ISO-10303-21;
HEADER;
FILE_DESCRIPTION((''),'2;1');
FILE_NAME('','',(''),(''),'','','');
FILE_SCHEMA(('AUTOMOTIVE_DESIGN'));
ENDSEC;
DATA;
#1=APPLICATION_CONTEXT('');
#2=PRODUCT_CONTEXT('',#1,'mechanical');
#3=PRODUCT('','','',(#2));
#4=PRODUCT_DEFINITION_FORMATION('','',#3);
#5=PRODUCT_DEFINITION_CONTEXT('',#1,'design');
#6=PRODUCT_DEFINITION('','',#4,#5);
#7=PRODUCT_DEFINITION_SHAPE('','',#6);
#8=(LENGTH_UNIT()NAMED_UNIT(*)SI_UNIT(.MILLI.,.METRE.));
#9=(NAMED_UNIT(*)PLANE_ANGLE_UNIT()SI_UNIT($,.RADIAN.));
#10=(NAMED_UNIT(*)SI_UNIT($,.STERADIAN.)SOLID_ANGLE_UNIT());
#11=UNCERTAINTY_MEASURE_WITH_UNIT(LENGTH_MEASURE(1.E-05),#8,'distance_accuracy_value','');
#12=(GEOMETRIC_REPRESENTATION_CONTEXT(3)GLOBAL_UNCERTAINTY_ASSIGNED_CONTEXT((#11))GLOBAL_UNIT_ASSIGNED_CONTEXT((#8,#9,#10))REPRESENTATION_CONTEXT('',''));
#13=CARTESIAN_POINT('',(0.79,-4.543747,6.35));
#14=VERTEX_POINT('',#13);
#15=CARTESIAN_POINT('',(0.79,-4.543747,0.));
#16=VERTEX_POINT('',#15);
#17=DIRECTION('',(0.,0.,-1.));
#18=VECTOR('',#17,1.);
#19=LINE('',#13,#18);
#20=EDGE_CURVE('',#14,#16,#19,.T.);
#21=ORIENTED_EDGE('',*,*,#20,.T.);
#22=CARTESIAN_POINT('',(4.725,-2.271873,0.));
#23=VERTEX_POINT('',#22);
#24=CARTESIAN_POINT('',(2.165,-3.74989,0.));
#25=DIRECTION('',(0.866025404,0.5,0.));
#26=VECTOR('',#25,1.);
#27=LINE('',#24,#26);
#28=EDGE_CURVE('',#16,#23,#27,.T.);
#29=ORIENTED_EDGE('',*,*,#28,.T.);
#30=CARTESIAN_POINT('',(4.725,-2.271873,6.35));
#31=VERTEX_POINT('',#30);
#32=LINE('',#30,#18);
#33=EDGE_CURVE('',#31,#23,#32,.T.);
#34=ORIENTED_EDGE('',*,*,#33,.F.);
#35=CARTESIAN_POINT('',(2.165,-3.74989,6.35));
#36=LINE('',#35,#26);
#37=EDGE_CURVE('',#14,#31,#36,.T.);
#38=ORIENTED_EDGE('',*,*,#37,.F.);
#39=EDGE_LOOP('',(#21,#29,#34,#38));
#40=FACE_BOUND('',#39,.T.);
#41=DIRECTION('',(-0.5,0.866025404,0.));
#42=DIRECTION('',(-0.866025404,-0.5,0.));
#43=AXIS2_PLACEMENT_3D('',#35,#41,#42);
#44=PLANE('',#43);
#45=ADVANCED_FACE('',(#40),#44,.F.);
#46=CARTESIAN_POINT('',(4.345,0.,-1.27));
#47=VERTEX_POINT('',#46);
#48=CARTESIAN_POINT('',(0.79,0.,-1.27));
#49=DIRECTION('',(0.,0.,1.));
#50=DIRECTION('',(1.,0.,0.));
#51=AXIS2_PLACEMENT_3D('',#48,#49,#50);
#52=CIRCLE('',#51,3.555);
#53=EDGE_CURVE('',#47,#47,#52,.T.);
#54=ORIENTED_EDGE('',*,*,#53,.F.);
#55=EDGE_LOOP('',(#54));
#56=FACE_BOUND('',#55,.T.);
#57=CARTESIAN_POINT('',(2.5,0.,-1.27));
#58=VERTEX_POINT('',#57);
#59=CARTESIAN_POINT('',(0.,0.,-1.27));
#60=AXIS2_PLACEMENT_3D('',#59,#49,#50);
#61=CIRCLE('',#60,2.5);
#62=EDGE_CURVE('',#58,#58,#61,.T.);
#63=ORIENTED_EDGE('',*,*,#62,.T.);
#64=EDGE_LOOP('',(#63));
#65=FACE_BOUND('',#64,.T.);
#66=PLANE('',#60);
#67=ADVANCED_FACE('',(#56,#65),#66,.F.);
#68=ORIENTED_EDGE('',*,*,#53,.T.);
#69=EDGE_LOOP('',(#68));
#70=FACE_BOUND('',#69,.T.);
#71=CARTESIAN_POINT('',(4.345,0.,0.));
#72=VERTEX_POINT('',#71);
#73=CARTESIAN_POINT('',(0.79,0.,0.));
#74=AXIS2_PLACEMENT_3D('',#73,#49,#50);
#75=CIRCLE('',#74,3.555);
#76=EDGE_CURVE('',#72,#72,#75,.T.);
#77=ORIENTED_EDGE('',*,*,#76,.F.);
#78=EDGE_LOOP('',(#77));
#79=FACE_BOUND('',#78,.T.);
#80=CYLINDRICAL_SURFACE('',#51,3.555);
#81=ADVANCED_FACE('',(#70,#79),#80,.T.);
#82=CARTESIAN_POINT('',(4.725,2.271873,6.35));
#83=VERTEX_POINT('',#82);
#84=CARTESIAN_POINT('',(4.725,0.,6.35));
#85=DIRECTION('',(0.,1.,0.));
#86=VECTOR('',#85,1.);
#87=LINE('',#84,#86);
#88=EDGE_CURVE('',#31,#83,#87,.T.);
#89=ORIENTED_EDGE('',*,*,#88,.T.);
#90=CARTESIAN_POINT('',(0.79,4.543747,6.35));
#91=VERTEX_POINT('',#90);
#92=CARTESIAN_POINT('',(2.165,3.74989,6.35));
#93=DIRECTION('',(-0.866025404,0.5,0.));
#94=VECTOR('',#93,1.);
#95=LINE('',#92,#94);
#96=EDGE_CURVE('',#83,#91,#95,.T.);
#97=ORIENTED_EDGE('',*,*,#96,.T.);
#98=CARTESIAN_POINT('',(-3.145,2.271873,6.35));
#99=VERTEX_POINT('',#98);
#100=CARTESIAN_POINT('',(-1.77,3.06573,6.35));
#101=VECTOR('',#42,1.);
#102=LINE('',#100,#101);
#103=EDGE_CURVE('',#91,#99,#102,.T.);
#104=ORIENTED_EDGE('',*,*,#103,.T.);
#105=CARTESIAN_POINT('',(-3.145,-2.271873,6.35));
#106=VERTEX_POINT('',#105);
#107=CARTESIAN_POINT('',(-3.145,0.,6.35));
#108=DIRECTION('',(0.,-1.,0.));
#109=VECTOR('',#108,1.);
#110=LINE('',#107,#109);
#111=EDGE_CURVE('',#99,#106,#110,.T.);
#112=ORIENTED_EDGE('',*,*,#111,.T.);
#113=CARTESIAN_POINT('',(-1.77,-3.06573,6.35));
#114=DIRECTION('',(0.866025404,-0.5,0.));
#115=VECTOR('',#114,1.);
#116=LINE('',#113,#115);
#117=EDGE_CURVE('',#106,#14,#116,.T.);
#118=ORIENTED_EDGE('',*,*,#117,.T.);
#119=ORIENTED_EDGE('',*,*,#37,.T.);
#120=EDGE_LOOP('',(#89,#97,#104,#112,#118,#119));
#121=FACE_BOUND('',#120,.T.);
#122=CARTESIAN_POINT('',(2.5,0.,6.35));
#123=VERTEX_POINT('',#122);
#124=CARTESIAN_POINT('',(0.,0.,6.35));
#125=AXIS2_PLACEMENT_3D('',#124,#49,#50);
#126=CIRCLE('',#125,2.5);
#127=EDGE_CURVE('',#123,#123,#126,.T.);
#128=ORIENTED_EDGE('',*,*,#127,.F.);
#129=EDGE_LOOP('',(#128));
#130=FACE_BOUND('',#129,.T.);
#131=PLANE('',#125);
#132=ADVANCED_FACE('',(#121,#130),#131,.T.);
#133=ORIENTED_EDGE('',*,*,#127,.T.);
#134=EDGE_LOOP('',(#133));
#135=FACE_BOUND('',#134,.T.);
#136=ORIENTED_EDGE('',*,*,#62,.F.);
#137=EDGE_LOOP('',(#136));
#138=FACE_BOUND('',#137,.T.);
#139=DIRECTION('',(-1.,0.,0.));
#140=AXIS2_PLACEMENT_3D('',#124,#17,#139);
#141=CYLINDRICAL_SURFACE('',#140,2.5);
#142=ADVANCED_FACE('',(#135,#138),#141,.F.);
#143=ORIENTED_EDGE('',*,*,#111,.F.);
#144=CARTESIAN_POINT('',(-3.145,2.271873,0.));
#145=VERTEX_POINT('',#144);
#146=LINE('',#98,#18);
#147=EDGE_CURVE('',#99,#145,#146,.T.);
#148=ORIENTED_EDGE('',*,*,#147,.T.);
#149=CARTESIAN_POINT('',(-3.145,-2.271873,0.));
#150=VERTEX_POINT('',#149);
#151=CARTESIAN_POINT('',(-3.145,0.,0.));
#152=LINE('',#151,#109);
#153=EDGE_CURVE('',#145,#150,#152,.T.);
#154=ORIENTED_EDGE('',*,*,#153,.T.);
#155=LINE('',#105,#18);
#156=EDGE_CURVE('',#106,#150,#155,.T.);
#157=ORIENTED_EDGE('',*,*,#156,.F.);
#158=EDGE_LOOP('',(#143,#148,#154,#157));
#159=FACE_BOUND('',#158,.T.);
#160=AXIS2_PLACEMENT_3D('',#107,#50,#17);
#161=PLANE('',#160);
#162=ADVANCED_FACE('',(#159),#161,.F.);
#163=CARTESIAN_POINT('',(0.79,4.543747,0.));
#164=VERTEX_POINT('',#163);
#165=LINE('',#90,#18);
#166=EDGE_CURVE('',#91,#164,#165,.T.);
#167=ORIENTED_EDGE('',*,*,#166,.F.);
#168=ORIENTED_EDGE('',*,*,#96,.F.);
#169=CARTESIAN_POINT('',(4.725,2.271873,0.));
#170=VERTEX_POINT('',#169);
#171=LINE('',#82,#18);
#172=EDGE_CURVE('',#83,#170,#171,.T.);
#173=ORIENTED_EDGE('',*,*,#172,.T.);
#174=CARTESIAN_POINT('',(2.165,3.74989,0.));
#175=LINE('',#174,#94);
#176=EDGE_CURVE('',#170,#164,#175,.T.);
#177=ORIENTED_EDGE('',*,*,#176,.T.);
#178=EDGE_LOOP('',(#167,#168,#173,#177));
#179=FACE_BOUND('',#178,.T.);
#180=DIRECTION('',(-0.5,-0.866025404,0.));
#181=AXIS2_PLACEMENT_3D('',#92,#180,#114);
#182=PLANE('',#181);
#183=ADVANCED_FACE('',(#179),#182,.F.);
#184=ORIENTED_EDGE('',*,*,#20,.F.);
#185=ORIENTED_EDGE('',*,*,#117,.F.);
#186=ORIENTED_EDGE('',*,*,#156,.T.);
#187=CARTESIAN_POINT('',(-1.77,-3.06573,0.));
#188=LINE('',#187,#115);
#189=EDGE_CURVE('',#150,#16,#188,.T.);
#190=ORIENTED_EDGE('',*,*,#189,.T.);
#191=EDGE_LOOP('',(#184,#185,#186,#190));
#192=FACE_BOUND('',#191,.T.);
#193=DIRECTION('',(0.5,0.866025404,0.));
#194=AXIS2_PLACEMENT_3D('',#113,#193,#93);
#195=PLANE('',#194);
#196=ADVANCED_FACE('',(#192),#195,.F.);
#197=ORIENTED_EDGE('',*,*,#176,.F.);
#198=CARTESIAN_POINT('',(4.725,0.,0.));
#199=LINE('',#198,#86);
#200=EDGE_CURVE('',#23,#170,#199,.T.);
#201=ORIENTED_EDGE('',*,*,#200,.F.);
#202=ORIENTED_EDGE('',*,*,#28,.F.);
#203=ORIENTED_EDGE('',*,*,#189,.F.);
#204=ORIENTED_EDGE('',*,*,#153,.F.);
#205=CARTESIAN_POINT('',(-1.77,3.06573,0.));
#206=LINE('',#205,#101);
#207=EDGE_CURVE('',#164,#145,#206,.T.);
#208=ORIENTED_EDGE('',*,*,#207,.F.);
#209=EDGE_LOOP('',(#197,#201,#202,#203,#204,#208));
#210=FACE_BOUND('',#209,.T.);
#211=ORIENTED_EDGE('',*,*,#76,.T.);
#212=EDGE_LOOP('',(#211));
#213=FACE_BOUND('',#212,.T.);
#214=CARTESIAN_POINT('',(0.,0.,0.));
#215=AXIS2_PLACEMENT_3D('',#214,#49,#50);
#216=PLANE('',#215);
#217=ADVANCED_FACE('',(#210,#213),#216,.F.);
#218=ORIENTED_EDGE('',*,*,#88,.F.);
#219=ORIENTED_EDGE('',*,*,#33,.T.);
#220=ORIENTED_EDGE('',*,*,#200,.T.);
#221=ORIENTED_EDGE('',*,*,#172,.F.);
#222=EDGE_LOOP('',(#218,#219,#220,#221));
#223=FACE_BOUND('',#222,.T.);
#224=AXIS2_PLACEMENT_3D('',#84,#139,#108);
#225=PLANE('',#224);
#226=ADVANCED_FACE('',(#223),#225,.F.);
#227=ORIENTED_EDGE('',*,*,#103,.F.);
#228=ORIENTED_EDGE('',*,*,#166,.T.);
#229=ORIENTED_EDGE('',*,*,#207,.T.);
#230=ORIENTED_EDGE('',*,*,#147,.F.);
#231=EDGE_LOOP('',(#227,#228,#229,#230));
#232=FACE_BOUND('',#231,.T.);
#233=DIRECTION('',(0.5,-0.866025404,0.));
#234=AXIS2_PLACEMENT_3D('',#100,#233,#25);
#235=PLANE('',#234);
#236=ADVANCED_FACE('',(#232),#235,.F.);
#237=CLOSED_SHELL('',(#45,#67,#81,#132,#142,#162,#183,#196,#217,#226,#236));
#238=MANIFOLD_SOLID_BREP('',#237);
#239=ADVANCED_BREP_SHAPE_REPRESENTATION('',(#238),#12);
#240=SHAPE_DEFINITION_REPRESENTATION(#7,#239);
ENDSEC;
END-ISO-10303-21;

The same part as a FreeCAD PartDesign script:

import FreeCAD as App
import Part
import Sketcher
from FreeCAD import Vector
Q = App.Units.Quantity


def add_polygon(sketch, points):
    """Adds a closed chain of lines whose ends are joined by coincident constraints."""
    first, n = sketch.GeometryCount, len(points)
    for a, b in zip(points, points[1:] + points[:1]):
        sketch.addGeometry(Part.LineSegment(App.Vector(*a, 0), App.Vector(*b, 0)), False)
    for i in range(n):
        sketch.addConstraint(Sketcher.Constraint("Coincident", first + i, 2, first + (i + 1) % n, 1))

doc = App.newDocument("Part")
body = doc.addObject("PartDesign::Body", "Body")

# Sketch on XY plane
sketch1 = body.newObject("Sketcher::SketchObject", "Sketch")
sketch1.AttachmentSupport = (doc.getObject("XY_Plane"), [""])
sketch1.MapMode = "FlatFace"
add_polygon(sketch1, [(4.725, -2.271873), (4.725, 2.271873), (0.79, 4.543747), (-3.145, 2.271873), (-3.145, -2.271873), (0.79, -4.543747)])  # lines 0-5
sketch1.addGeometry(Part.Circle(Vector(0, 0, 0), Vector(0, 0, 1), 2.5), False)  # 6
sketch1.addConstraint([
    Sketcher.Constraint("Vertical", 0),
    Sketcher.Constraint("Vertical", 3),
    Sketcher.Constraint("Coincident", 6, 3, -1, 1),
    Sketcher.Constraint("Symmetric", 1, 2, 4, 2, -1),
    Sketcher.Constraint("Parallel", 1, 4),
    Sketcher.Constraint("Parallel", 2, 5),
    Sketcher.Constraint("Horizontal", 0, 2, 2, 2),
    Sketcher.Constraint("Horizontal", 3, 2, 5, 2),
    Sketcher.Constraint("Angle", 1, Q("150 deg")),
    Sketcher.Constraint("Diameter", 6, Q("5 mm")),
    Sketcher.Constraint("DistanceX", -1, 1, 0, 2, Q("4.725 mm")),
    Sketcher.Constraint("DistanceX", -1, 1, 1, 2, Q("0.79 mm")),
    Sketcher.Constraint("DistanceY", 0, 1, 0, 2, Q("4.543747 mm")),
])
pad1 = body.newObject("PartDesign::Pad", "Pad")
pad1.Profile = sketch1
pad1.Length = Q("0.25 in")

# Sketch on XY plane
sketch2 = body.newObject("Sketcher::SketchObject", "Sketch001")
sketch2.AttachmentSupport = (doc.getObject("XY_Plane"), [""])
sketch2.MapMode = "FlatFace"
sketch2.AttachmentOffset = App.Placement(Vector(0, 0, -0.05 * 25.4), App.Rotation())
sketch2.addGeometry([
    Part.Circle(Vector(0.79, 0, 0), Vector(0, 0, 1), 3.555),
    Part.Circle(Vector(0, 0, 0), Vector(0, 0, 1), 2.5),
], False)
sketch2.addConstraint([
    Sketcher.Constraint("Coincident", 1, 3, -1, 1),
    Sketcher.Constraint("PointOnObject", 0, 3, -1),
    Sketcher.Constraint("Diameter", 0, Q("7.11 mm")),
    Sketcher.Constraint("Diameter", 1, Q("5 mm")),
    Sketcher.Constraint("DistanceX", -1, 1, 0, 3, Q("0.79 mm")),
])
pad2 = body.newObject("PartDesign::Pad", "Pad001")
pad2.Profile = sketch2
pad2.Length = Q("0.05 in")

doc.recompute()
